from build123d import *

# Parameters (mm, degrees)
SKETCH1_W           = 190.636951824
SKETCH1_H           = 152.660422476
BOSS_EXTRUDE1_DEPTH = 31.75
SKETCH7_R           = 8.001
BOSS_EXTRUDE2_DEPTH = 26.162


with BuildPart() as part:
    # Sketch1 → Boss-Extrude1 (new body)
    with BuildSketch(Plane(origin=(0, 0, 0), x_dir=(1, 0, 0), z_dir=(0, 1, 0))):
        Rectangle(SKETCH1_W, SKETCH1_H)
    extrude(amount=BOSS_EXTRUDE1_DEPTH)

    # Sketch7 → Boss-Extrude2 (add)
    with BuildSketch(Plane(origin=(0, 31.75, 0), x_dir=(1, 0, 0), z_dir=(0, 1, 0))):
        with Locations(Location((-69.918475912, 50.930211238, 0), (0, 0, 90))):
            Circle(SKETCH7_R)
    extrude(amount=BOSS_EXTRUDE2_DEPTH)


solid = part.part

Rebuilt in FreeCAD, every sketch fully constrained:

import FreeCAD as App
import Part
import Sketcher

V = App.Vector
Q = App.Units.Quantity


def add_polygon(sketch, points):
    """Adds a closed chain of lines whose ends are joined by coincident constraints."""
    first, n = sketch.GeometryCount, len(points)
    for a, b in zip(points, points[1:] + points[:1]):
        sketch.addGeometry(Part.LineSegment(App.Vector(*a, 0), App.Vector(*b, 0)), False)
    for i in range(n):
        sketch.addConstraint(Sketcher.Constraint("Coincident", first + i, 2, first + (i + 1) % n, 1))

doc = App.newDocument("Part")
body = doc.addObject("PartDesign::Body", "Body")

sketch1 = doc.addObject("Sketcher::SketchObject", "Sketch")
body.addObject(sketch1)
sketch1.AttachmentSupport = (doc.XZ_Plane, [""])
sketch1.MapMode = "FlatFace"
add_polygon(sketch1, [(-95, -76), (-95, 76), (95, 76), (95, -76)])
sketch1.addConstraint([
    Sketcher.Constraint("Vertical", 0),
    Sketcher.Constraint("Horizontal", 1),
    Sketcher.Constraint("Vertical", 2),
    Sketcher.Constraint("Horizontal", 3),
    Sketcher.Constraint("Symmetric", 0, 2, 2, 2, -1, 1),
    Sketcher.Constraint("DistanceX", 1, 1, 1, 2, 190.636952),
    Sketcher.Constraint("DistanceY", 0, 1, 0, 2, 152.660422),
])
pad1 = doc.addObject("PartDesign::Pad", "Pad")
body.addObject(pad1)
pad1.Profile = sketch1
pad1.Length = Q("1.25 in")
pad1.Reversed = True

sketch2 = doc.addObject("Sketcher::SketchObject", "Sketch001")
body.addObject(sketch2)
sketch2.AttachmentSupport = (doc.XZ_Plane, [""])
sketch2.MapMode = "FlatFace"
sketch2.AttachmentOffset = App.Placement(V(0, 0, -1.25 * 25.4), App.Rotation())
sketch2.addGeometry(Part.Circle(V(-70, -51, 0), V(0, 0, 1), 8), False)
sketch2.addConstraint([
    Sketcher.Constraint("Diameter", 0, Q("0.63 in")),
    Sketcher.Constraint("DistanceY", 0, 3, -1, 1, 50.930211),
    Sketcher.Constraint("DistanceX", 0, 3, -1, 1, 69.918476),
])
pad2 = doc.addObject("PartDesign::Pad", "Pad001")
body.addObject(pad2)
pad2.Profile = sketch2
pad2.Length = Q("1.03 in")
pad2.Reversed = True

doc.recompute()
